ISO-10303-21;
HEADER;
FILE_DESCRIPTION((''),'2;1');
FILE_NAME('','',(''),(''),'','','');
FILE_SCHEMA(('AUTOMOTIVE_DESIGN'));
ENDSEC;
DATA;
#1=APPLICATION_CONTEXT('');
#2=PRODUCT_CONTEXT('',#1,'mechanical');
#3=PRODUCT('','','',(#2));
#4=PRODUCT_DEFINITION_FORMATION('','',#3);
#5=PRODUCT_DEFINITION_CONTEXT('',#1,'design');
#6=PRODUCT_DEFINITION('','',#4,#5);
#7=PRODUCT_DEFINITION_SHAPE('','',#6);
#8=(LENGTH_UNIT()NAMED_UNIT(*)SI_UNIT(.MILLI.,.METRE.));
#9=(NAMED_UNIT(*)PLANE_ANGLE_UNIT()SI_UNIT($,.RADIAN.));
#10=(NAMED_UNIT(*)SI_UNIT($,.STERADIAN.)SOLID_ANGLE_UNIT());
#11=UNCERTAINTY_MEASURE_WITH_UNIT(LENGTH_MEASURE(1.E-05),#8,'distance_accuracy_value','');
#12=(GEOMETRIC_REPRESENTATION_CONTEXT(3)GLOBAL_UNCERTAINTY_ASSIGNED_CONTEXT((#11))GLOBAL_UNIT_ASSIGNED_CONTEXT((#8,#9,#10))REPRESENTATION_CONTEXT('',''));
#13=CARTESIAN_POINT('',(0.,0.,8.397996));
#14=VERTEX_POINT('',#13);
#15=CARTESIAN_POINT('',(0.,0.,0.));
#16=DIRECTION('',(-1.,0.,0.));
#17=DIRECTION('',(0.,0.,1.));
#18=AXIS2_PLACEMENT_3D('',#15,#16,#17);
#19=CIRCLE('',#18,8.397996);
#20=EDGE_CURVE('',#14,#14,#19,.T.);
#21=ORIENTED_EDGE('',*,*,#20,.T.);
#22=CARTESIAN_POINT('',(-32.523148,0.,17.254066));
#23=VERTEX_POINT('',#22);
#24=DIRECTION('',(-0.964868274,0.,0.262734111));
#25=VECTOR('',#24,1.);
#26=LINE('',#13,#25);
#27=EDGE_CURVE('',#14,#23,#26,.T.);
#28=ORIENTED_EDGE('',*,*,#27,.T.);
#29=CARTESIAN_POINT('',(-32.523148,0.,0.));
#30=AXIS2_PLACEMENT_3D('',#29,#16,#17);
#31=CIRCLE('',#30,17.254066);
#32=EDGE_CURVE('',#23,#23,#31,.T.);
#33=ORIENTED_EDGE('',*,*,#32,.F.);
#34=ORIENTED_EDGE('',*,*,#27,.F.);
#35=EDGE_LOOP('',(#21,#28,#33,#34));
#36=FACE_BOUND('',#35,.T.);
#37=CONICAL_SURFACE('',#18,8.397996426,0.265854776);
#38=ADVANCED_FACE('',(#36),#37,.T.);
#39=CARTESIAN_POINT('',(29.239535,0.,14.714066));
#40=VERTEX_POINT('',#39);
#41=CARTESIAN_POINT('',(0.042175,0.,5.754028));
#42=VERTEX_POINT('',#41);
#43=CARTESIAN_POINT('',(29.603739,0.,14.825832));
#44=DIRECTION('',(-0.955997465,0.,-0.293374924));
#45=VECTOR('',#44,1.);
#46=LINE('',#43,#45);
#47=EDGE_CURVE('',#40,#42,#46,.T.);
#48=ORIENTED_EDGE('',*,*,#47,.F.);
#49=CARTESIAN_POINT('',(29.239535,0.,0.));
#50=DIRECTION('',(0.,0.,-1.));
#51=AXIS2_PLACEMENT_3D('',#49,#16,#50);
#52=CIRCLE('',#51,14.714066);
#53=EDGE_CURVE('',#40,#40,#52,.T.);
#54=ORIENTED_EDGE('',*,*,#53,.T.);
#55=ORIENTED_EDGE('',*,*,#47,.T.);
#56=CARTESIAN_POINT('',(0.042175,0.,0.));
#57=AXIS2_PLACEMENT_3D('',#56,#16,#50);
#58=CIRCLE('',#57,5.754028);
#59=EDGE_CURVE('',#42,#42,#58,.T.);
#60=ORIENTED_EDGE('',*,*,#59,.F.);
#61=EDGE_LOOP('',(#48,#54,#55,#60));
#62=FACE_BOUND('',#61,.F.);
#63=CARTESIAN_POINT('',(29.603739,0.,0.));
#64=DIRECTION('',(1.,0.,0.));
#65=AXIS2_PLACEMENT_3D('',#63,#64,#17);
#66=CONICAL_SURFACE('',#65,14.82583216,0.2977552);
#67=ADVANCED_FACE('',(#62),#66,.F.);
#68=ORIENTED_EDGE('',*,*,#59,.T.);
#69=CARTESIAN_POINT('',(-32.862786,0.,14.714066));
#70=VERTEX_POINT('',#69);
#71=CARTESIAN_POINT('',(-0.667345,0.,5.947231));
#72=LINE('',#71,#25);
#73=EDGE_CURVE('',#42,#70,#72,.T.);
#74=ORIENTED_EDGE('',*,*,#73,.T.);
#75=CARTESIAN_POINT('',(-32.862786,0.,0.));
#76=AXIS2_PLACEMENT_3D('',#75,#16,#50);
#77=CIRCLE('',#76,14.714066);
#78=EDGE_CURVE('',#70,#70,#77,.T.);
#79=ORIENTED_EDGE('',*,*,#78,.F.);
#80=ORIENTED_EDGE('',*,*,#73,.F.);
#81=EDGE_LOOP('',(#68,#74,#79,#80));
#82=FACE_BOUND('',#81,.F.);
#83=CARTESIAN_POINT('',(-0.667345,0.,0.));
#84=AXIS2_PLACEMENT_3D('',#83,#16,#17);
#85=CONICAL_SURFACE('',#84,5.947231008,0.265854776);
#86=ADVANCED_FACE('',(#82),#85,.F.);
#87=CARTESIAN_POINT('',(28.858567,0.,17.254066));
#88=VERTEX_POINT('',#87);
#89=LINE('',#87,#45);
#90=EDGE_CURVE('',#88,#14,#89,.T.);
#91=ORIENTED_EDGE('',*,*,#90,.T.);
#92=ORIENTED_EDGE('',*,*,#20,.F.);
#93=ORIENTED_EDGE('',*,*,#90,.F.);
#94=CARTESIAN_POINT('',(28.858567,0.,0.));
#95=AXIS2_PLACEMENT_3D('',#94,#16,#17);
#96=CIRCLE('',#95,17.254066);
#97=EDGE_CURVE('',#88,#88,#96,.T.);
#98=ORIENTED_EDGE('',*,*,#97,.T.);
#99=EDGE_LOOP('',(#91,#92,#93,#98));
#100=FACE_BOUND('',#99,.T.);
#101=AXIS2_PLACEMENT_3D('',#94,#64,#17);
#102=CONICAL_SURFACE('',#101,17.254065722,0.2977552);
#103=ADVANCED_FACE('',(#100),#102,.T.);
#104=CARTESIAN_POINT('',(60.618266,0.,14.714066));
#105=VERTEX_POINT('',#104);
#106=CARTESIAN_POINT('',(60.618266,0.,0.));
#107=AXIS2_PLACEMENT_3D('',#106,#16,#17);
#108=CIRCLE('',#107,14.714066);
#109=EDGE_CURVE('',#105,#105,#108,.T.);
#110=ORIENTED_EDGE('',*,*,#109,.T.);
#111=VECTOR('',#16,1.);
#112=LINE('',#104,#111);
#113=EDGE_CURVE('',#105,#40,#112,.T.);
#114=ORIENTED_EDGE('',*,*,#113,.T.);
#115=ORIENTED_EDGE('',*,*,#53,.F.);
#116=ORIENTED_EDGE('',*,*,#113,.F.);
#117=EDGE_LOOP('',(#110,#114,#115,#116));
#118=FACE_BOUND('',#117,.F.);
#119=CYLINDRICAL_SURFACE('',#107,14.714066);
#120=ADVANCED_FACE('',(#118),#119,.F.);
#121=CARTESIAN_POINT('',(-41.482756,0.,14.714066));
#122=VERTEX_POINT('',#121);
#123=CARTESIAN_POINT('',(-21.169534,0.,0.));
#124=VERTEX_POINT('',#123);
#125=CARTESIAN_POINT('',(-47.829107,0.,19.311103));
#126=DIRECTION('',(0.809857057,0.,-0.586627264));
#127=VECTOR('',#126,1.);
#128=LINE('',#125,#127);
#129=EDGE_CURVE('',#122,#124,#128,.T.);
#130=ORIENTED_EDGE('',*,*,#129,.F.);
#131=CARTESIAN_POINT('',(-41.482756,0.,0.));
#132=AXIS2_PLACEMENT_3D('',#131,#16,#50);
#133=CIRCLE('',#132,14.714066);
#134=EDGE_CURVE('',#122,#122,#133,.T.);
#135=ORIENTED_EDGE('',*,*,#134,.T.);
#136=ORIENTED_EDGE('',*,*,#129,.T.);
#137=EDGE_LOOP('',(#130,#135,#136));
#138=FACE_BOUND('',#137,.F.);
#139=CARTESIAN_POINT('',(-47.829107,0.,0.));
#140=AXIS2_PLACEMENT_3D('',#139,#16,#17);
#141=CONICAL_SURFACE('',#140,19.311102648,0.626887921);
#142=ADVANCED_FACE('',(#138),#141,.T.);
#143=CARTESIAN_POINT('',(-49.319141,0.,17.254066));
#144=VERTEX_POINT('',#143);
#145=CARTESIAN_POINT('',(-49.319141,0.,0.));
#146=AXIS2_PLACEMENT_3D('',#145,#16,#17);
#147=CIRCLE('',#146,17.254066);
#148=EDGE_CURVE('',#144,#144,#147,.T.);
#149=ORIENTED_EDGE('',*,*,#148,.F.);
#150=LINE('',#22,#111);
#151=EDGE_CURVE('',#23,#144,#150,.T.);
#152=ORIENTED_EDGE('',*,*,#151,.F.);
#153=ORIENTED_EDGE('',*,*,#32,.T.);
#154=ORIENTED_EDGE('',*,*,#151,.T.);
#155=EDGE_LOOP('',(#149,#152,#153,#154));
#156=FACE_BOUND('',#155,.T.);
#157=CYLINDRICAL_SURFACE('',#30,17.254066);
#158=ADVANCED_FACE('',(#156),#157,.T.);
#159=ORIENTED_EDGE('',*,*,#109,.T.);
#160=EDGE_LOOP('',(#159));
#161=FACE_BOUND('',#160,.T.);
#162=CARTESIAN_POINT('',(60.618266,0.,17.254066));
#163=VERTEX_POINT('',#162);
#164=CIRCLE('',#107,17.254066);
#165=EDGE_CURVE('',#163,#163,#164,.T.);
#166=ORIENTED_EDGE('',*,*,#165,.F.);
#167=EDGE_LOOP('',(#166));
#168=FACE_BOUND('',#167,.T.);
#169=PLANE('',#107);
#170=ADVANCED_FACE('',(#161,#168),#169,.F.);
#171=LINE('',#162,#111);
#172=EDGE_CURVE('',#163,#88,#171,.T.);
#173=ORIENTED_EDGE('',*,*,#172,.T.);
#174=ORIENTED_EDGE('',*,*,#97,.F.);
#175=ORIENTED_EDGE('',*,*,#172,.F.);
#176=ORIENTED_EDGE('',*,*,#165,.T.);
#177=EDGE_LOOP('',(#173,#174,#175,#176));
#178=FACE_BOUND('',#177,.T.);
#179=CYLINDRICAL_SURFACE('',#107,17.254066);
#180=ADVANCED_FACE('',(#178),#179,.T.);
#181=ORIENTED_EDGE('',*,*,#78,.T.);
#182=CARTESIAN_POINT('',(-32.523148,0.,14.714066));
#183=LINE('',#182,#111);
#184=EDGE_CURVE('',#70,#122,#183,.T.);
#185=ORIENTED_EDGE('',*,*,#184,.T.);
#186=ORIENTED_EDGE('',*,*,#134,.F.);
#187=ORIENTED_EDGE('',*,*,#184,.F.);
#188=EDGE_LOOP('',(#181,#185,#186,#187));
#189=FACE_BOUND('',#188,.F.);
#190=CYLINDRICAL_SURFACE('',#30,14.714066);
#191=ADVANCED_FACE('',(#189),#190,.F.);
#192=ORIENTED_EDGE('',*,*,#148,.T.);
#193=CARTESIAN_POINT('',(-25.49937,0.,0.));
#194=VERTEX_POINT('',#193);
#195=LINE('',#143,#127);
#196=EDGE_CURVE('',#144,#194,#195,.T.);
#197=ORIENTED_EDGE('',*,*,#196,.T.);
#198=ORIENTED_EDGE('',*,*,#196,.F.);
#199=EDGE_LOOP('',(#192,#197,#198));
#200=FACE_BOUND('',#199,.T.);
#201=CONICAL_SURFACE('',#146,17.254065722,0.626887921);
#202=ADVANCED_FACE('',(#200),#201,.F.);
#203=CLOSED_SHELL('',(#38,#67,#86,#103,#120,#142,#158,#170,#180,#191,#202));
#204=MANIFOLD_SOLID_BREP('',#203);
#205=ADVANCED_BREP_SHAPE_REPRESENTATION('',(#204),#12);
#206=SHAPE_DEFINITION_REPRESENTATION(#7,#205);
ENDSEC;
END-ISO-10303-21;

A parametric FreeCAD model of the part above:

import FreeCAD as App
import Part
import Sketcher
Q = App.Units.Quantity


def faces_at(feature, points):
    """Names of the faces that lie closest to the given points."""
    faces = feature.Shape.Faces
    near = lambda p: min(range(len(faces)), key=lambda i: faces[i].distToShape(Part.Vertex(*p))[0])
    return sorted({f"Face{near(p) + 1}" for p in points})


def add_polygon(sketch, points):
    """Adds a closed chain of lines whose ends are joined by coincident constraints."""
    first, n = sketch.GeometryCount, len(points)
    for a, b in zip(points, points[1:] + points[:1]):
        sketch.addGeometry(Part.LineSegment(App.Vector(*a, 0), App.Vector(*b, 0)), False)
    for i in range(n):
        sketch.addConstraint(Sketcher.Constraint("Coincident", first + i, 2, first + (i + 1) % n, 1))

doc = App.newDocument("Part")
body = doc.addObject("PartDesign::Body", "Body")

# Sketch on XZ plane
sketch1 = body.newObject("Sketcher::SketchObject", "Sketch")
sketch1.AttachmentSupport = (doc.getObject("XZ_Plane"), [""])
sketch1.MapMode = "FlatFace"
add_polygon(sketch1, [(0, 8), (-33, 17), (-49, 17), (-25, 0), (61, 0), (61, 17), (29, 17)])  # lines 0-6
sketch1.addConstraint(Sketcher.Constraint("Horizontal", 1))
sketch1.addConstraint(Sketcher.Constraint("Horizontal", 3))
sketch1.addConstraint(Sketcher.Constraint("Vertical", 4))
sketch1.addConstraint(Sketcher.Constraint("Horizontal", 5))
sketch1.addConstraint(Sketcher.Constraint("PointOnObject", 2, 2, -1))
sketch1.addConstraint(Sketcher.Constraint("PointOnObject", 6, 2, -2))
sketch1.addConstraint(Sketcher.Constraint("Horizontal", 1, 2, 4, 2))
sketch1.addConstraint(Sketcher.Constraint("DistanceX", 5, 2, 5, 1, 31.7597))
sketch1.addConstraint(Sketcher.Constraint("DistanceX", 1, 2, 1, 1, 16.795993))
sketch1.addConstraint(Sketcher.Constraint("DistanceX", 3, 1, 3, 2, 86.117636))
sketch1.addConstraint(Sketcher.Constraint("DistanceY", 4, 1, 4, 2, 17.254066))
sketch1.addConstraint(Sketcher.Constraint("DistanceX", 1, 2, -1, 1, 49.319141))
sketch1.addConstraint(Sketcher.Constraint("DistanceX", 2, 2, -1, 1, 25.49937))
sketch1.addConstraint(Sketcher.Constraint("DistanceY", 6, 2, 5, 2, 8.856069))
revolution = body.newObject("PartDesign::Revolution", "Revolution")
revolution.Profile = sketch1
revolution.ReferenceAxis = (sketch1, ["H_Axis"])
revolution.Angle = 360
doc.recompute()

thickness = body.newObject("PartDesign::Thickness", "Thickness")
thickness.Base = (revolution, faces_at(revolution, [(60.618, 0, 0)]))
thickness.Value = Q("0.1 in")
thickness.Reversed = True
thickness.Join = "Intersection"

doc.recompute()
